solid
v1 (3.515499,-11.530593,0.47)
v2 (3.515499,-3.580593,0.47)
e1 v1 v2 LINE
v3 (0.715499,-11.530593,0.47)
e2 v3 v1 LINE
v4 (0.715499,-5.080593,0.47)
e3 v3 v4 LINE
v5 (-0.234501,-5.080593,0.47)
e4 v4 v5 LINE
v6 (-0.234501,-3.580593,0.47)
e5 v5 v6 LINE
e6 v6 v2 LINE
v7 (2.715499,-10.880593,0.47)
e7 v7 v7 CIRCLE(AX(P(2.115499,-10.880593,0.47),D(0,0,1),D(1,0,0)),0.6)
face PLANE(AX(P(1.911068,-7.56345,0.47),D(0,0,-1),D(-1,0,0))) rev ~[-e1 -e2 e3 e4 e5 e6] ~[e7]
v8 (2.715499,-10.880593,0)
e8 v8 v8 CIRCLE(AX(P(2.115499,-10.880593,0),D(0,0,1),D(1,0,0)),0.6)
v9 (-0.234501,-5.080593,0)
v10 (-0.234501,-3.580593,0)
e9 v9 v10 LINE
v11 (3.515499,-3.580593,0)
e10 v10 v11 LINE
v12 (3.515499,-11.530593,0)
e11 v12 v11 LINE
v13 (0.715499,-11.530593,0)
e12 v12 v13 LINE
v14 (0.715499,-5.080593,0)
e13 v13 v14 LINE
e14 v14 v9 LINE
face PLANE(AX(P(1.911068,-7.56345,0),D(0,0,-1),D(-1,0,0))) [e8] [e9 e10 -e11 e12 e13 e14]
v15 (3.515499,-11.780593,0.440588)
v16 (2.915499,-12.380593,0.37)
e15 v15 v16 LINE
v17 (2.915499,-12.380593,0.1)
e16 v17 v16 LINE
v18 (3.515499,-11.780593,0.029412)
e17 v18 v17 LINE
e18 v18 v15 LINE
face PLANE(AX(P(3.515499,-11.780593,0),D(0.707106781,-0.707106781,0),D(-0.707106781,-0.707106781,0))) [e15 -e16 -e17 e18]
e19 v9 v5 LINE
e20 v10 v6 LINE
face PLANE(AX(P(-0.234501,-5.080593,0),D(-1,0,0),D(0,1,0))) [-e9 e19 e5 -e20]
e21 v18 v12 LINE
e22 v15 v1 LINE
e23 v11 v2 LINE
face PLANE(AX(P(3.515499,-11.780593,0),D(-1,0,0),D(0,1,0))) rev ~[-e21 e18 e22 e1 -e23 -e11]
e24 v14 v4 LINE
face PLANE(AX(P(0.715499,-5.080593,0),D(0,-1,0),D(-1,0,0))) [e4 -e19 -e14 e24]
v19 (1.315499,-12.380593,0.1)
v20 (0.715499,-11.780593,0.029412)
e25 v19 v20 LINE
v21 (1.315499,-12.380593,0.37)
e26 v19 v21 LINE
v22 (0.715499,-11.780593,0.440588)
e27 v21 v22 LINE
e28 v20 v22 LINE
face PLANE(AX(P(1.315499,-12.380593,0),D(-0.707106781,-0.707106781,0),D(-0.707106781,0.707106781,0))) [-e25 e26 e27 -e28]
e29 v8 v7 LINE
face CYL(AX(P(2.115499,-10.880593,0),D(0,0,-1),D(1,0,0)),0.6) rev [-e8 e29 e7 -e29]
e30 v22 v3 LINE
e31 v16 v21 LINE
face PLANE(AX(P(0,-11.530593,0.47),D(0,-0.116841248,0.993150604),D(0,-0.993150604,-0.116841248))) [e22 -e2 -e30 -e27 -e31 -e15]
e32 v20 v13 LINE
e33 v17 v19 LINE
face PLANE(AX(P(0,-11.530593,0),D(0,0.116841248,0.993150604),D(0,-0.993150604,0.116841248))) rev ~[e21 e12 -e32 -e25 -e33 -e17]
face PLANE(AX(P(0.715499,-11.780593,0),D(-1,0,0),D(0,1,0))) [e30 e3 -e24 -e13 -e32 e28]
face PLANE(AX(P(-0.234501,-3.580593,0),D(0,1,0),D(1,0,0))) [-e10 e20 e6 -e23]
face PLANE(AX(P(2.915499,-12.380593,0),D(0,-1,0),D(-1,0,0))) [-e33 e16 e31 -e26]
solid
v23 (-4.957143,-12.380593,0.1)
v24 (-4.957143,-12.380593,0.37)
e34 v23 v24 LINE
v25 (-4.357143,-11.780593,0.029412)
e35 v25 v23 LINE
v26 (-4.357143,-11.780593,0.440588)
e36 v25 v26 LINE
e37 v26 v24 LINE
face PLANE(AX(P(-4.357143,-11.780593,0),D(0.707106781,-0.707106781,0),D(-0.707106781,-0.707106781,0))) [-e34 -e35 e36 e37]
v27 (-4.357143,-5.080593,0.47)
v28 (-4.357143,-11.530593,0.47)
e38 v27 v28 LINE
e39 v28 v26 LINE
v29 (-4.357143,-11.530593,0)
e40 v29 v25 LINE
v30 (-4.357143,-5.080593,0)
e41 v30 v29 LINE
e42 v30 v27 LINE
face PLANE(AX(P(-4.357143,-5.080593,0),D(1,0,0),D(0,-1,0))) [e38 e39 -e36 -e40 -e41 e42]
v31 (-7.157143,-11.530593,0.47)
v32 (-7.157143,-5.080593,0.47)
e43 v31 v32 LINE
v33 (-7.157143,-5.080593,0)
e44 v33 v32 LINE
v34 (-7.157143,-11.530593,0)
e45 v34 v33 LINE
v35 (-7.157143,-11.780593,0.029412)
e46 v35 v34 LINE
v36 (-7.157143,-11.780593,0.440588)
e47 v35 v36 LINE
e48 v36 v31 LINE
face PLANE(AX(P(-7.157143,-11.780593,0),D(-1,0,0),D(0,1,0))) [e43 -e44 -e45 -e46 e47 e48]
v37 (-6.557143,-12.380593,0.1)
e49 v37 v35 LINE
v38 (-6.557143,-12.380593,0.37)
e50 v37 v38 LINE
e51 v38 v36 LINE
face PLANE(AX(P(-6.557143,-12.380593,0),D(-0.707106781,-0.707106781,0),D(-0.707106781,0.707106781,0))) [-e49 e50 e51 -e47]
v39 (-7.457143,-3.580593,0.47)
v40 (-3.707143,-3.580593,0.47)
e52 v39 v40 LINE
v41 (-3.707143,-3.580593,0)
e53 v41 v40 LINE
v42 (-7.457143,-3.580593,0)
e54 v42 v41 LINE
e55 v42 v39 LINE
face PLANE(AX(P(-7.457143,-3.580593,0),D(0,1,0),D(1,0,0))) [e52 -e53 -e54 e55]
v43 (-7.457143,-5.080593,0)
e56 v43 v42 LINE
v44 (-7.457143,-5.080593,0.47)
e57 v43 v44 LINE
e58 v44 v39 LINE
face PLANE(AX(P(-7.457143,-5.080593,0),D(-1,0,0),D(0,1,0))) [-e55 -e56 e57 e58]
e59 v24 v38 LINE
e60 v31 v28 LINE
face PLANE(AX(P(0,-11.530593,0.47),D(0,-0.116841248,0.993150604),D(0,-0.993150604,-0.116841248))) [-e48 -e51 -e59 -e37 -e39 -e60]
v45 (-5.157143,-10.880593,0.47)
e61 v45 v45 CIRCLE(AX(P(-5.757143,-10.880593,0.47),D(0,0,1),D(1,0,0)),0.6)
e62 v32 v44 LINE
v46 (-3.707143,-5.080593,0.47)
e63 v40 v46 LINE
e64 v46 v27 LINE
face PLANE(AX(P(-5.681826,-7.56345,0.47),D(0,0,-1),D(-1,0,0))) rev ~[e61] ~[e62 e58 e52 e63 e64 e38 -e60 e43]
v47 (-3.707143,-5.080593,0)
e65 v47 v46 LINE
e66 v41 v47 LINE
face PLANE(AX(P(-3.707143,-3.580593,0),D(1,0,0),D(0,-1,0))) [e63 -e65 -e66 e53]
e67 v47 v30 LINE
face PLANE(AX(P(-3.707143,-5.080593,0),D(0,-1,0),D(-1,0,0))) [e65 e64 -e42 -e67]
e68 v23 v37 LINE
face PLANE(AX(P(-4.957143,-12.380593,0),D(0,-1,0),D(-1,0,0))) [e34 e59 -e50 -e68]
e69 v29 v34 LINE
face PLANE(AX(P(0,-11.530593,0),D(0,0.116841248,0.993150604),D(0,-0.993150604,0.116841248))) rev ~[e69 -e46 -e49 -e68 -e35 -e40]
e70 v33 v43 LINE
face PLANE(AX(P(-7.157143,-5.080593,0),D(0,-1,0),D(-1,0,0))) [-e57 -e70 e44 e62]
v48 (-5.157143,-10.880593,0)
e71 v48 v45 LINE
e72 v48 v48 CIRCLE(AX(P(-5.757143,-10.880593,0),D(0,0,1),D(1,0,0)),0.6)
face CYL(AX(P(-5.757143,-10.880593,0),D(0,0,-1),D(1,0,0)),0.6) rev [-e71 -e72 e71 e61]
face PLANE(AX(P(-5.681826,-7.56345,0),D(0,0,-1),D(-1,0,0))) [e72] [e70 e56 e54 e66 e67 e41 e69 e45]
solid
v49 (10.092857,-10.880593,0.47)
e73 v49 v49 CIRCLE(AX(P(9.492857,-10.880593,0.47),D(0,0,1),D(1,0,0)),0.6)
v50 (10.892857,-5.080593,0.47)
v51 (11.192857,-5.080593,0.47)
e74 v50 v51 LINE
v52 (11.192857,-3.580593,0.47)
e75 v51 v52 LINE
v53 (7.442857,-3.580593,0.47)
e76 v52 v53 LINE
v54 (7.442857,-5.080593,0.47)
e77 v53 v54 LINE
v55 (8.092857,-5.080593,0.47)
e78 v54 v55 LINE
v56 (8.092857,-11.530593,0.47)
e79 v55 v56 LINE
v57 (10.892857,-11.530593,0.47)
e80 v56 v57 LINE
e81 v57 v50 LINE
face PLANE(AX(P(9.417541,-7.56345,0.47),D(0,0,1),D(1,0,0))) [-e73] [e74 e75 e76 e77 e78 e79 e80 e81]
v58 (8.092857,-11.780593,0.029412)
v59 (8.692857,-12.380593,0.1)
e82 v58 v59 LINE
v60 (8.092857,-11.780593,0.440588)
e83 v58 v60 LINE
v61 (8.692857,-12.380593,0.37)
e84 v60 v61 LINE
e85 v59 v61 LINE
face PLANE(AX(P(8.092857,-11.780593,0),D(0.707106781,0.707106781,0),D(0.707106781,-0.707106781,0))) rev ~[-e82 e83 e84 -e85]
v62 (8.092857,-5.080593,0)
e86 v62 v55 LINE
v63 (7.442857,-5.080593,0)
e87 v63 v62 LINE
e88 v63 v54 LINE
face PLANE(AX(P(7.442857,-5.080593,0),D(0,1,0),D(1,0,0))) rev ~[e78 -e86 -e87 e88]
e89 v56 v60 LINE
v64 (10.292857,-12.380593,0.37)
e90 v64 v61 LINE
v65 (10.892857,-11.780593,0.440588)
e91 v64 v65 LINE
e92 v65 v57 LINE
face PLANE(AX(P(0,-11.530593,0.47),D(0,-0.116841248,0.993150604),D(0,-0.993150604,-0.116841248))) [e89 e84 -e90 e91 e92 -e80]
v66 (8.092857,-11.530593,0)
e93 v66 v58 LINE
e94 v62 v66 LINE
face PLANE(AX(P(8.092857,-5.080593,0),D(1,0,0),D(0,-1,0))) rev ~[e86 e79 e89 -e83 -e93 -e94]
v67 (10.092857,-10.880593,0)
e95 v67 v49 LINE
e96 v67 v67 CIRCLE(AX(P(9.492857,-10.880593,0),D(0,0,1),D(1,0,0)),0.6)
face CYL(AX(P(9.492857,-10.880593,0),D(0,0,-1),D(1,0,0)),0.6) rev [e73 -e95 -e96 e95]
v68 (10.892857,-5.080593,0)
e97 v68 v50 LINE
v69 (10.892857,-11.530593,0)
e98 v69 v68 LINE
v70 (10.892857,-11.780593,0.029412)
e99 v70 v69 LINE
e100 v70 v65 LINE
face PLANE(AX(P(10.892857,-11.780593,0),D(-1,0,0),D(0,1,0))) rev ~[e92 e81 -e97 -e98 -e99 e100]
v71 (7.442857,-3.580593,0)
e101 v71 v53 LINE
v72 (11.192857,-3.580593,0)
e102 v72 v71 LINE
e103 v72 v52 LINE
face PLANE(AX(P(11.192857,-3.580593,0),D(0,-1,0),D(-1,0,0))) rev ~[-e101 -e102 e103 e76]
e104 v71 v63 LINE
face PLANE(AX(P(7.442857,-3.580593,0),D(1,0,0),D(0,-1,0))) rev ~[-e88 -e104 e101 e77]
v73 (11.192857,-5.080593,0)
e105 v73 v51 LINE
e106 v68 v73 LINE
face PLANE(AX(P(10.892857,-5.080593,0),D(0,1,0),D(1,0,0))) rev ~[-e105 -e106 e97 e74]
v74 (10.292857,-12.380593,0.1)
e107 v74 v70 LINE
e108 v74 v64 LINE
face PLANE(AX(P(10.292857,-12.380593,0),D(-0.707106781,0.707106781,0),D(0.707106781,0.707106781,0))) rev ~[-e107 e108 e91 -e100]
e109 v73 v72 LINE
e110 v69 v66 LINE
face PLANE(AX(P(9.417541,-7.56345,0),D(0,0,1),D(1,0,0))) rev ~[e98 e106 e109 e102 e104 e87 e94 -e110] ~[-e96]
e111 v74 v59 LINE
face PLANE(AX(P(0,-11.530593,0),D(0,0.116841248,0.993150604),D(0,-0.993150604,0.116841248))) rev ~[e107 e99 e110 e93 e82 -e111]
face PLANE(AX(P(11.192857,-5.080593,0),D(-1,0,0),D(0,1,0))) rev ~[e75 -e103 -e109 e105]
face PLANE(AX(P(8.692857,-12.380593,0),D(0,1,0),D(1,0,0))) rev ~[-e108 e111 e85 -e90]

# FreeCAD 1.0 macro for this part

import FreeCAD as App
import Part
import Sketcher

V = App.Vector


def add_polygon(sketch, points):
    """Adds a closed chain of lines whose ends are joined by coincident constraints."""
    first, n = sketch.GeometryCount, len(points)
    for a, b in zip(points, points[1:] + points[:1]):
        sketch.addGeometry(Part.LineSegment(App.Vector(*a, 0), App.Vector(*b, 0)), False)
    for i in range(n):
        sketch.addConstraint(Sketcher.Constraint("Coincident", first + i, 2, first + (i + 1) % n, 1))

doc = App.newDocument("Part")
body = doc.addObject("PartDesign::Body", "Body")

# Sketch on XY plane
sketch1 = body.newObject("Sketcher::SketchObject", "Sketch")
sketch1.AttachmentSupport = (doc.getObject("XY_Plane"), [""])
sketch1.MapMode = "FlatFace"
add_polygon(sketch1, [(-3.707143, -3.580593), (-7.457143, -3.580593), (-7.457143, -5.080593), (-7.157143, -5.080593), (-7.157143, -11.780593), (-6.557143, -12.380593), (-4.957143, -12.380593), (-4.357143, -11.780593), (-4.357143, -5.080593), (-3.707143, -5.080593)])  # lines 0-9
sketch1.addGeometry(Part.Circle(V(-5.757143, -10.880593, 0), V(0, 0, 1), 0.6), False)  # 10
sketch1.addConstraint([
    Sketcher.Constraint("Horizontal", 0),
    Sketcher.Constraint("Vertical", 1),
    Sketcher.Constraint("Horizontal", 2),
    Sketcher.Constraint("Vertical", 3),
    Sketcher.Constraint("Horizontal", 5),
    Sketcher.Constraint("Vertical", 7),
    Sketcher.Constraint("Horizontal", 8),
    Sketcher.Constraint("Vertical", 9),
    Sketcher.Constraint("Perpendicular", 4, 6),
    Sketcher.Constraint("Horizontal", 3, 2, 6, 2),
    Sketcher.Constraint("Horizontal", 2, 2, 7, 2),
    Sketcher.Constraint("Equal", 4, 6),
    Sketcher.Constraint("Diameter", 10, 1.2),
    Sketcher.Constraint("DistanceX", 2, 1, 2, 2, 0.3),
    Sketcher.Constraint("DistanceX", 5, 1, 5, 2, 1.6),
    Sketcher.Constraint("DistanceY", 1, 2, 1, 1, 1.5),
    Sketcher.Constraint("DistanceY", 3, 2, 3, 1, 6.7),
    Sketcher.Constraint("DistanceX", 0, 2, 0, 1, 3.75),
    Sketcher.Constraint("DistanceX", 8, 1, 8, 2, 0.65),
    Sketcher.Constraint("DistanceX", 0, 2, 10, 3, 1.7),
    Sketcher.Constraint("DistanceY", 10, 3, 0, 2, 7.3),
    Sketcher.Constraint("DistanceX", 10, 3, -1, 1, 5.757143),
    Sketcher.Constraint("DistanceY", 10, 3, -1, 1, 10.880593),
])
pad1 = body.newObject("PartDesign::Pad", "Pad")
pad1.Profile = sketch1
pad1.Length = 0.47
body2 = doc.addObject("PartDesign::Body", "Body001")

# Sketch on XY plane
sketch2 = body2.newObject("Sketcher::SketchObject", "Sketch001")
sketch2.AttachmentSupport = (doc.getObject("XY_Plane001"), [""])
sketch2.MapMode = "FlatFace"
add_polygon(sketch2, [(3.515499, -3.580593), (-0.234501, -3.580593), (-0.234501, -5.080593), (0.715499, -5.080593), (0.715499, -11.780593), (1.315499, -12.380593), (2.915499, -12.380593), (3.515499, -11.780593)])  # lines 0-7
sketch2.addGeometry(Part.Circle(V(2.115499, -10.880593, 0), V(0, 0, 1), 0.6), False)  # 8
sketch2.addConstraint([
    Sketcher.Constraint("Horizontal", 0),
    Sketcher.Constraint("Vertical", 1),
    Sketcher.Constraint("Horizontal", 2),
    Sketcher.Constraint("Vertical", 3),
    Sketcher.Constraint("Horizontal", 5),
    Sketcher.Constraint("Vertical", 7),
    Sketcher.Constraint("Perpendicular", 4, 6),
    Sketcher.Constraint("Horizontal", 3, 2, 6, 2),
    Sketcher.Constraint("Equal", 4, 6),
    Sketcher.Constraint("Diameter", 8, 1.2),
    Sketcher.Constraint("DistanceX", 5, 1, 5, 2, 1.6),
    Sketcher.Constraint("DistanceY", 1, 2, 1, 1, 1.5),
    Sketcher.Constraint("DistanceY", 3, 2, 3, 1, 6.7),
    Sketcher.Constraint("DistanceX", 0, 2, 0, 1, 3.75),
    Sketcher.Constraint("DistanceX", 2, 1, 2, 2, 0.95),
    Sketcher.Constraint("DistanceY", 8, 3, 0, 2, 7.3),
    Sketcher.Constraint("DistanceX", 2, 2, 8, 3, 1.4),
    Sketcher.Constraint("DistanceX", -1, 1, 8, 3, 2.115499),
    Sketcher.Constraint("DistanceY", 8, 3, -1, 1, 10.880593),
])
pad2 = body2.newObject("PartDesign::Pad", "Pad001")
pad2.Profile = sketch2
pad2.Length = 0.47
body3 = doc.addObject("PartDesign::Body", "Body002")

# Sketch on XY plane
sketch3 = body3.newObject("Sketcher::SketchObject", "Sketch002")
sketch3.AttachmentSupport = (doc.getObject("XY_Plane002"), [""])
sketch3.MapMode = "FlatFace"
add_polygon(sketch3, [(11.192857, -3.580593), (7.442857, -3.580593), (7.442857, -5.080593), (8.092857, -5.080593), (8.092857, -11.780593), (8.692857, -12.380593), (10.292857, -12.380593), (10.892857, -11.780593), (10.892857, -5.080593), (11.192857, -5.080593)])  # lines 0-9
sketch3.addGeometry(Part.Circle(V(9.492857, -10.880593, 0), V(0, 0, 1), 0.6), False)  # 10
sketch3.addConstraint([
    Sketcher.Constraint("Horizontal", 0),
    Sketcher.Constraint("Vertical", 1),
    Sketcher.Constraint("Horizontal", 2),
    Sketcher.Constraint("Vertical", 3),
    Sketcher.Constraint("Horizontal", 5),
    Sketcher.Constraint("Vertical", 7),
    Sketcher.Constraint("Horizontal", 8),
    Sketcher.Constraint("Vertical", 9),
    Sketcher.Constraint("Perpendicular", 4, 6),
    Sketcher.Constraint("Horizontal", 3, 2, 6, 2),
    Sketcher.Constraint("Horizontal", 2, 2, 7, 2),
    Sketcher.Constraint("Equal", 4, 6),
    Sketcher.Constraint("Diameter", 10, 1.2),
    Sketcher.Constraint("DistanceX", 5, 1, 5, 2, 1.6),
    Sketcher.Constraint("DistanceX", 8, 1, 8, 2, 0.3),
    Sketcher.Constraint("DistanceY", 1, 2, 1, 1, 1.5),
    Sketcher.Constraint("DistanceY", 3, 2, 3, 1, 6.7),
    Sketcher.Constraint("DistanceX", 0, 2, 0, 1, 3.75),
    Sketcher.Constraint("DistanceX", 2, 1, 2, 2, 0.65),
    Sketcher.Constraint("DistanceY", 10, 3, 0, 2, 7.3),
    Sketcher.Constraint("DistanceX", 2, 2, 10, 3, 1.4),
    Sketcher.Constraint("DistanceX", -1, 1, 10, 3, 9.492857),
    Sketcher.Constraint("DistanceY", 10, 3, -1, 1, 10.880593),
])
pad3 = body3.newObject("PartDesign::Pad", "Pad002")
pad3.Profile = sketch3
pad3.Length = 0.47
body4 = doc.addObject("PartDesign::Body", "Body003")
body4.AllowCompound = True

# Sketch on YZ plane
sketch4 = body4.newObject("Sketcher::SketchObject", "Sketch003")
sketch4.AttachmentSupport = (doc.getObject("YZ_Plane003"), [""])
sketch4.MapMode = "FlatFace"
add_polygon(sketch4, [(-12.380593, 0.37), (-11.530593, 0.47), (-12.380593, 0.47)])  # lines 0-2
add_polygon(sketch4, [(-12.380593, 0.1), (-12.380593, 0), (-11.530593, 0)])  # lines 3-5
sketch4.addConstraint([
    Sketcher.Constraint("Horizontal", 1),
    Sketcher.Constraint("Vertical", 2),
    Sketcher.Constraint("Vertical", 3),
    Sketcher.Constraint("Horizontal", 4),
    Sketcher.Constraint("PointOnObject", 3, 2, -1),
    Sketcher.Constraint("Vertical", 2, 2, 3, 2),
    Sketcher.Constraint("Vertical", 0, 2, 4, 2),
    Sketcher.Constraint("Equal", 2, 3),
    Sketcher.Constraint("DistanceY", 2, 2, 2, 1, 0.1),
    Sketcher.Constraint("DistanceX", 1, 2, 1, 1, 0.85),
    Sketcher.Constraint("DistanceY", -1, 1, 0, 2, 0.47),
    Sketcher.Constraint("DistanceX", 0, 2, -1, 1, 11.530593),
])
pad4 = body4.newObject("PartDesign::Pad", "Pad003")
pad4.Profile = sketch4
pad4.Type = "TwoLengths"
pad4.Length = 12.192857
pad4.Length2 = 8.457143
doc.recompute()

body5 = doc.addObject("PartDesign::Body", "Body004")
body5.BaseFeature = body4
boolean = body.newObject("PartDesign::Boolean", "Boolean")
boolean.Type = "Cut"
boolean.addObjects([body5])
doc.recompute()

body6 = doc.addObject("PartDesign::Body", "Body005")
body6.BaseFeature = body4
boolean2 = body2.newObject("PartDesign::Boolean", "Boolean001")
boolean2.Type = "Cut"
boolean2.addObjects([body6])
doc.recompute()

boolean3 = body3.newObject("PartDesign::Boolean", "Boolean002")
boolean3.Type = "Cut"
boolean3.addObjects([body4])

doc.recompute()
